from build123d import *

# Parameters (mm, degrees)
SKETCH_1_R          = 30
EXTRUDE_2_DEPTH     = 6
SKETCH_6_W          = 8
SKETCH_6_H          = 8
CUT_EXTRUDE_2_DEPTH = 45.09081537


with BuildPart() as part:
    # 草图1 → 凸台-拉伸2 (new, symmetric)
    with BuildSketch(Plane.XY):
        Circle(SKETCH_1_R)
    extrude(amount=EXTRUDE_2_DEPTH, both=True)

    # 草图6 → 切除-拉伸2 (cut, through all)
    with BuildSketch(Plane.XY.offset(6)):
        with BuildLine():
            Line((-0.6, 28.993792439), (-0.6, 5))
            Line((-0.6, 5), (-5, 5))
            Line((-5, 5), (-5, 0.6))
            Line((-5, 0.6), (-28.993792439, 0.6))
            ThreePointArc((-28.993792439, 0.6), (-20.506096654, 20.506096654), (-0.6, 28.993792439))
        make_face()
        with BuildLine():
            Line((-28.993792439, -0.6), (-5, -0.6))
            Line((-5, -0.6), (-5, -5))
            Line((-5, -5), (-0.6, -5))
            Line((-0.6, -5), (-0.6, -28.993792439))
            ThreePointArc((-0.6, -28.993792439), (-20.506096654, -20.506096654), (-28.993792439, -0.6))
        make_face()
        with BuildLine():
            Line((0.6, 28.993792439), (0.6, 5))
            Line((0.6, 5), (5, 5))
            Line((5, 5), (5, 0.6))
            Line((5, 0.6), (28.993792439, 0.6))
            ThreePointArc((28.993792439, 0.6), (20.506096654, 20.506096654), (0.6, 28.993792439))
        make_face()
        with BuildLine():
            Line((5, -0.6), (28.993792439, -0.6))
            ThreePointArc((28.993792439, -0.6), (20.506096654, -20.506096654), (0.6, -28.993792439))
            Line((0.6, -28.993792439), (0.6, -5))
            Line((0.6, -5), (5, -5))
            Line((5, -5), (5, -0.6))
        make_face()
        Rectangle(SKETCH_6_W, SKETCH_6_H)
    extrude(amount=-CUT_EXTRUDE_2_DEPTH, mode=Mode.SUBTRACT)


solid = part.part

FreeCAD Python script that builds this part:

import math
import FreeCAD as App
import Part
import Sketcher
Q = App.Units.Quantity

doc = App.newDocument("Part")
body = doc.addObject("PartDesign::Body", "Body")

# Sketch on XY plane
sketch1 = body.newObject("Sketcher::SketchObject", "Sketch")
sketch1.AttachmentSupport = (doc.getObject("XY_Plane"), [""])
sketch1.MapMode = "FlatFace"
sketch1.addGeometry(Part.Circle(App.Vector(0, 0, 0), App.Vector(0, 0, 1), 30), False)
sketch1.addConstraint(Sketcher.Constraint("Coincident", 0, 3, -1, 1))
sketch1.addConstraint(Sketcher.Constraint("Diameter", 0, Q("60 mm")))
pad1 = body.newObject("PartDesign::Pad", "Pad")
pad1.Profile = sketch1
pad1.Length = 12
pad1.Midplane = True

# Sketch on XY plane
sketch2 = body.newObject("Sketcher::SketchObject", "Sketch001")
sketch2.AttachmentSupport = (doc.getObject("XY_Plane"), [""])
sketch2.MapMode = "FlatFace"
sketch2.AttachmentOffset = App.Placement(App.Vector(0, 0, 6), App.Rotation())
sketch2.addGeometry(Part.LineSegment(App.Vector(-0.6, 5, 0), App.Vector(-0.6, 29, 0)), False)
sketch2.addGeometry(Part.ArcOfCircle(Part.Circle(App.Vector(0, 0, 0), App.Vector(0, 0, 1), 29), math.radians(91), math.radians(179)), False)
sketch2.addGeometry(Part.LineSegment(App.Vector(-29, 0.6, 0), App.Vector(-5, 0.6, 0)), False)
sketch2.addGeometry(Part.LineSegment(App.Vector(-5, 0.6, 0), App.Vector(-5, 5, 0)), False)
sketch2.addGeometry(Part.LineSegment(App.Vector(-5, 5, 0), App.Vector(-0.6, 5, 0)), False)
sketch2.addGeometry(Part.LineSegment(App.Vector(-5, -0.6, 0), App.Vector(-29, -0.6, 0)), False)
sketch2.addGeometry(Part.ArcOfCircle(Part.Circle(App.Vector(0, 0, 0), App.Vector(0, 0, 1), 29), math.radians(-179), math.radians(-91)), False)
sketch2.addGeometry(Part.LineSegment(App.Vector(-0.6, -29, 0), App.Vector(-0.6, -5, 0)), False)
sketch2.addGeometry(Part.LineSegment(App.Vector(-0.6, -5, 0), App.Vector(-5, -5, 0)), False)
sketch2.addGeometry(Part.LineSegment(App.Vector(-5, -5, 0), App.Vector(-5, -0.6, 0)), False)
sketch2.addGeometry(Part.LineSegment(App.Vector(0.6, 29, 0), App.Vector(0.6, 5, 0)), False)
sketch2.addGeometry(Part.LineSegment(App.Vector(0.6, 5, 0), App.Vector(5, 5, 0)), False)
sketch2.addGeometry(Part.LineSegment(App.Vector(5, 5, 0), App.Vector(5, 0.6, 0)), False)
sketch2.addGeometry(Part.LineSegment(App.Vector(5, 0.6, 0), App.Vector(29, 0.6, 0)), False)
sketch2.addGeometry(Part.ArcOfCircle(Part.Circle(App.Vector(0, 0, 0), App.Vector(0, 0, 1), 29), math.radians(1), math.radians(89)), False)
sketch2.addGeometry(Part.LineSegment(App.Vector(29, -0.6, 0), App.Vector(5, -0.6, 0)), False)
sketch2.addGeometry(Part.LineSegment(App.Vector(5, -0.6, 0), App.Vector(5, -5, 0)), False)
sketch2.addGeometry(Part.LineSegment(App.Vector(5, -5, 0), App.Vector(0.6, -5, 0)), False)
sketch2.addGeometry(Part.LineSegment(App.Vector(0.6, -5, 0), App.Vector(0.6, -29, 0)), False)
sketch2.addGeometry(Part.ArcOfCircle(Part.Circle(App.Vector(0, 0, 0), App.Vector(0, 0, 1), 29), math.radians(-89), math.radians(-1)), False)
sketch2.addGeometry(Part.LineSegment(App.Vector(-4, 4, 0), App.Vector(-4, -4, 0)), False)
sketch2.addGeometry(Part.LineSegment(App.Vector(-4, -4, 0), App.Vector(4, -4, 0)), False)
sketch2.addGeometry(Part.LineSegment(App.Vector(4, -4, 0), App.Vector(4, 4, 0)), False)
sketch2.addGeometry(Part.LineSegment(App.Vector(4, 4, 0), App.Vector(-4, 4, 0)), False)
sketch2.addConstraint(Sketcher.Constraint("Coincident", 0, 2, 1, 1))
sketch2.addConstraint(Sketcher.Constraint("Coincident", 1, 2, 2, 1))
sketch2.addConstraint(Sketcher.Constraint("Coincident", 2, 2, 3, 1))
sketch2.addConstraint(Sketcher.Constraint("Coincident", 3, 2, 4, 1))
sketch2.addConstraint(Sketcher.Constraint("Coincident", 4, 2, 0, 1))
sketch2.addConstraint(Sketcher.Constraint("Coincident", 5, 2, 6, 1))
sketch2.addConstraint(Sketcher.Constraint("Coincident", 6, 2, 7, 1))
sketch2.addConstraint(Sketcher.Constraint("Coincident", 7, 2, 8, 1))
sketch2.addConstraint(Sketcher.Constraint("Coincident", 8, 2, 9, 1))
sketch2.addConstraint(Sketcher.Constraint("Coincident", 9, 2, 5, 1))
sketch2.addConstraint(Sketcher.Constraint("Coincident", 10, 2, 11, 1))
sketch2.addConstraint(Sketcher.Constraint("Coincident", 11, 2, 12, 1))
sketch2.addConstraint(Sketcher.Constraint("Coincident", 12, 2, 13, 1))
sketch2.addConstraint(Sketcher.Constraint("Coincident", 13, 2, 14, 1))
sketch2.addConstraint(Sketcher.Constraint("Coincident", 14, 2, 10, 1))
sketch2.addConstraint(Sketcher.Constraint("Coincident", 15, 2, 16, 1))
sketch2.addConstraint(Sketcher.Constraint("Coincident", 16, 2, 17, 1))
sketch2.addConstraint(Sketcher.Constraint("Coincident", 17, 2, 18, 1))
sketch2.addConstraint(Sketcher.Constraint("Coincident", 18, 2, 19, 1))
sketch2.addConstraint(Sketcher.Constraint("Coincident", 19, 2, 15, 1))
sketch2.addConstraint(Sketcher.Constraint("Coincident", 20, 2, 21, 1))
sketch2.addConstraint(Sketcher.Constraint("Coincident", 21, 2, 22, 1))
sketch2.addConstraint(Sketcher.Constraint("Coincident", 22, 2, 23, 1))
sketch2.addConstraint(Sketcher.Constraint("Coincident", 23, 2, 20, 1))
sketch2.addConstraint(Sketcher.Constraint("Vertical", 0))
sketch2.addConstraint(Sketcher.Constraint("Horizontal", 2))
sketch2.addConstraint(Sketcher.Constraint("Vertical", 3))
sketch2.addConstraint(Sketcher.Constraint("Horizontal", 4))
sketch2.addConstraint(Sketcher.Constraint("Horizontal", 5))
sketch2.addConstraint(Sketcher.Constraint("Vertical", 7))
sketch2.addConstraint(Sketcher.Constraint("Horizontal", 8))
sketch2.addConstraint(Sketcher.Constraint("Vertical", 9))
sketch2.addConstraint(Sketcher.Constraint("Vertical", 10))
sketch2.addConstraint(Sketcher.Constraint("Horizontal", 11))
sketch2.addConstraint(Sketcher.Constraint("Vertical", 12))
sketch2.addConstraint(Sketcher.Constraint("Horizontal", 13))
sketch2.addConstraint(Sketcher.Constraint("Horizontal", 15))
sketch2.addConstraint(Sketcher.Constraint("Vertical", 16))
sketch2.addConstraint(Sketcher.Constraint("Horizontal", 17))
sketch2.addConstraint(Sketcher.Constraint("Vertical", 18))
sketch2.addConstraint(Sketcher.Constraint("Vertical", 20))
sketch2.addConstraint(Sketcher.Constraint("Horizontal", 21))
sketch2.addConstraint(Sketcher.Constraint("Vertical", 22))
sketch2.addConstraint(Sketcher.Constraint("Horizontal", 23))
sketch2.addConstraint(Sketcher.Constraint("Coincident", 1, 3, -1, 1))
sketch2.addConstraint(Sketcher.Constraint("Coincident", 6, 3, -1, 1))
sketch2.addConstraint(Sketcher.Constraint("Coincident", 14, 3, -1, 1))
sketch2.addConstraint(Sketcher.Constraint("Coincident", 19, 3, -1, 1))
sketch2.addConstraint(Sketcher.Constraint("Equal", 1, 6))
sketch2.addConstraint(Sketcher.Constraint("Equal", 6, 14))
sketch2.addConstraint(Sketcher.Constraint("Equal", 14, 19))
sketch2.addConstraint(Sketcher.Constraint("Symmetric", 7, 2, 10, 2, -1, 1))
sketch2.addConstraint(Sketcher.Constraint("Symmetric", 9, 2, 12, 2, -1, 1))
sketch2.addConstraint(Sketcher.Constraint("Symmetric", 2, 2, 15, 2, -1, 1))
sketch2.addConstraint(Sketcher.Constraint("Symmetric", 4, 2, 17, 2, -1, 1))
sketch2.addConstraint(Sketcher.Constraint("Symmetric", 20, 2, 22, 2, -1, 1))
sketch2.addConstraint(Sketcher.Constraint("Symmetric", 4, 2, 10, 2, -2))
sketch2.addConstraint(Sketcher.Constraint("Symmetric", 2, 2, 12, 2, -2))
sketch2.addConstraint(Sketcher.Constraint("Equal", 15, 0))
sketch2.addConstraint(Sketcher.Constraint("Equal", 17, 3))
sketch2.addConstraint(Sketcher.Constraint("Equal", 23, 20))
sketch2.addConstraint(Sketcher.Constraint("Radius", 1, Q("29 mm")))
sketch2.addConstraint(Sketcher.Constraint("DistanceX", 21, 1, 21, 2, Q("8 mm")))
sketch2.addConstraint(Sketcher.Constraint("DistanceX", 4, 1, 4, 2, Q("4.4 mm")))
sketch2.addConstraint(Sketcher.Constraint("DistanceX", 2, 2, -1, 1, Q("5 mm")))
pocket1 = body.newObject("PartDesign::Pocket", "Pocket")
pocket1.Profile = sketch2
pocket1.Type = "ThroughAll"

doc.recompute()
